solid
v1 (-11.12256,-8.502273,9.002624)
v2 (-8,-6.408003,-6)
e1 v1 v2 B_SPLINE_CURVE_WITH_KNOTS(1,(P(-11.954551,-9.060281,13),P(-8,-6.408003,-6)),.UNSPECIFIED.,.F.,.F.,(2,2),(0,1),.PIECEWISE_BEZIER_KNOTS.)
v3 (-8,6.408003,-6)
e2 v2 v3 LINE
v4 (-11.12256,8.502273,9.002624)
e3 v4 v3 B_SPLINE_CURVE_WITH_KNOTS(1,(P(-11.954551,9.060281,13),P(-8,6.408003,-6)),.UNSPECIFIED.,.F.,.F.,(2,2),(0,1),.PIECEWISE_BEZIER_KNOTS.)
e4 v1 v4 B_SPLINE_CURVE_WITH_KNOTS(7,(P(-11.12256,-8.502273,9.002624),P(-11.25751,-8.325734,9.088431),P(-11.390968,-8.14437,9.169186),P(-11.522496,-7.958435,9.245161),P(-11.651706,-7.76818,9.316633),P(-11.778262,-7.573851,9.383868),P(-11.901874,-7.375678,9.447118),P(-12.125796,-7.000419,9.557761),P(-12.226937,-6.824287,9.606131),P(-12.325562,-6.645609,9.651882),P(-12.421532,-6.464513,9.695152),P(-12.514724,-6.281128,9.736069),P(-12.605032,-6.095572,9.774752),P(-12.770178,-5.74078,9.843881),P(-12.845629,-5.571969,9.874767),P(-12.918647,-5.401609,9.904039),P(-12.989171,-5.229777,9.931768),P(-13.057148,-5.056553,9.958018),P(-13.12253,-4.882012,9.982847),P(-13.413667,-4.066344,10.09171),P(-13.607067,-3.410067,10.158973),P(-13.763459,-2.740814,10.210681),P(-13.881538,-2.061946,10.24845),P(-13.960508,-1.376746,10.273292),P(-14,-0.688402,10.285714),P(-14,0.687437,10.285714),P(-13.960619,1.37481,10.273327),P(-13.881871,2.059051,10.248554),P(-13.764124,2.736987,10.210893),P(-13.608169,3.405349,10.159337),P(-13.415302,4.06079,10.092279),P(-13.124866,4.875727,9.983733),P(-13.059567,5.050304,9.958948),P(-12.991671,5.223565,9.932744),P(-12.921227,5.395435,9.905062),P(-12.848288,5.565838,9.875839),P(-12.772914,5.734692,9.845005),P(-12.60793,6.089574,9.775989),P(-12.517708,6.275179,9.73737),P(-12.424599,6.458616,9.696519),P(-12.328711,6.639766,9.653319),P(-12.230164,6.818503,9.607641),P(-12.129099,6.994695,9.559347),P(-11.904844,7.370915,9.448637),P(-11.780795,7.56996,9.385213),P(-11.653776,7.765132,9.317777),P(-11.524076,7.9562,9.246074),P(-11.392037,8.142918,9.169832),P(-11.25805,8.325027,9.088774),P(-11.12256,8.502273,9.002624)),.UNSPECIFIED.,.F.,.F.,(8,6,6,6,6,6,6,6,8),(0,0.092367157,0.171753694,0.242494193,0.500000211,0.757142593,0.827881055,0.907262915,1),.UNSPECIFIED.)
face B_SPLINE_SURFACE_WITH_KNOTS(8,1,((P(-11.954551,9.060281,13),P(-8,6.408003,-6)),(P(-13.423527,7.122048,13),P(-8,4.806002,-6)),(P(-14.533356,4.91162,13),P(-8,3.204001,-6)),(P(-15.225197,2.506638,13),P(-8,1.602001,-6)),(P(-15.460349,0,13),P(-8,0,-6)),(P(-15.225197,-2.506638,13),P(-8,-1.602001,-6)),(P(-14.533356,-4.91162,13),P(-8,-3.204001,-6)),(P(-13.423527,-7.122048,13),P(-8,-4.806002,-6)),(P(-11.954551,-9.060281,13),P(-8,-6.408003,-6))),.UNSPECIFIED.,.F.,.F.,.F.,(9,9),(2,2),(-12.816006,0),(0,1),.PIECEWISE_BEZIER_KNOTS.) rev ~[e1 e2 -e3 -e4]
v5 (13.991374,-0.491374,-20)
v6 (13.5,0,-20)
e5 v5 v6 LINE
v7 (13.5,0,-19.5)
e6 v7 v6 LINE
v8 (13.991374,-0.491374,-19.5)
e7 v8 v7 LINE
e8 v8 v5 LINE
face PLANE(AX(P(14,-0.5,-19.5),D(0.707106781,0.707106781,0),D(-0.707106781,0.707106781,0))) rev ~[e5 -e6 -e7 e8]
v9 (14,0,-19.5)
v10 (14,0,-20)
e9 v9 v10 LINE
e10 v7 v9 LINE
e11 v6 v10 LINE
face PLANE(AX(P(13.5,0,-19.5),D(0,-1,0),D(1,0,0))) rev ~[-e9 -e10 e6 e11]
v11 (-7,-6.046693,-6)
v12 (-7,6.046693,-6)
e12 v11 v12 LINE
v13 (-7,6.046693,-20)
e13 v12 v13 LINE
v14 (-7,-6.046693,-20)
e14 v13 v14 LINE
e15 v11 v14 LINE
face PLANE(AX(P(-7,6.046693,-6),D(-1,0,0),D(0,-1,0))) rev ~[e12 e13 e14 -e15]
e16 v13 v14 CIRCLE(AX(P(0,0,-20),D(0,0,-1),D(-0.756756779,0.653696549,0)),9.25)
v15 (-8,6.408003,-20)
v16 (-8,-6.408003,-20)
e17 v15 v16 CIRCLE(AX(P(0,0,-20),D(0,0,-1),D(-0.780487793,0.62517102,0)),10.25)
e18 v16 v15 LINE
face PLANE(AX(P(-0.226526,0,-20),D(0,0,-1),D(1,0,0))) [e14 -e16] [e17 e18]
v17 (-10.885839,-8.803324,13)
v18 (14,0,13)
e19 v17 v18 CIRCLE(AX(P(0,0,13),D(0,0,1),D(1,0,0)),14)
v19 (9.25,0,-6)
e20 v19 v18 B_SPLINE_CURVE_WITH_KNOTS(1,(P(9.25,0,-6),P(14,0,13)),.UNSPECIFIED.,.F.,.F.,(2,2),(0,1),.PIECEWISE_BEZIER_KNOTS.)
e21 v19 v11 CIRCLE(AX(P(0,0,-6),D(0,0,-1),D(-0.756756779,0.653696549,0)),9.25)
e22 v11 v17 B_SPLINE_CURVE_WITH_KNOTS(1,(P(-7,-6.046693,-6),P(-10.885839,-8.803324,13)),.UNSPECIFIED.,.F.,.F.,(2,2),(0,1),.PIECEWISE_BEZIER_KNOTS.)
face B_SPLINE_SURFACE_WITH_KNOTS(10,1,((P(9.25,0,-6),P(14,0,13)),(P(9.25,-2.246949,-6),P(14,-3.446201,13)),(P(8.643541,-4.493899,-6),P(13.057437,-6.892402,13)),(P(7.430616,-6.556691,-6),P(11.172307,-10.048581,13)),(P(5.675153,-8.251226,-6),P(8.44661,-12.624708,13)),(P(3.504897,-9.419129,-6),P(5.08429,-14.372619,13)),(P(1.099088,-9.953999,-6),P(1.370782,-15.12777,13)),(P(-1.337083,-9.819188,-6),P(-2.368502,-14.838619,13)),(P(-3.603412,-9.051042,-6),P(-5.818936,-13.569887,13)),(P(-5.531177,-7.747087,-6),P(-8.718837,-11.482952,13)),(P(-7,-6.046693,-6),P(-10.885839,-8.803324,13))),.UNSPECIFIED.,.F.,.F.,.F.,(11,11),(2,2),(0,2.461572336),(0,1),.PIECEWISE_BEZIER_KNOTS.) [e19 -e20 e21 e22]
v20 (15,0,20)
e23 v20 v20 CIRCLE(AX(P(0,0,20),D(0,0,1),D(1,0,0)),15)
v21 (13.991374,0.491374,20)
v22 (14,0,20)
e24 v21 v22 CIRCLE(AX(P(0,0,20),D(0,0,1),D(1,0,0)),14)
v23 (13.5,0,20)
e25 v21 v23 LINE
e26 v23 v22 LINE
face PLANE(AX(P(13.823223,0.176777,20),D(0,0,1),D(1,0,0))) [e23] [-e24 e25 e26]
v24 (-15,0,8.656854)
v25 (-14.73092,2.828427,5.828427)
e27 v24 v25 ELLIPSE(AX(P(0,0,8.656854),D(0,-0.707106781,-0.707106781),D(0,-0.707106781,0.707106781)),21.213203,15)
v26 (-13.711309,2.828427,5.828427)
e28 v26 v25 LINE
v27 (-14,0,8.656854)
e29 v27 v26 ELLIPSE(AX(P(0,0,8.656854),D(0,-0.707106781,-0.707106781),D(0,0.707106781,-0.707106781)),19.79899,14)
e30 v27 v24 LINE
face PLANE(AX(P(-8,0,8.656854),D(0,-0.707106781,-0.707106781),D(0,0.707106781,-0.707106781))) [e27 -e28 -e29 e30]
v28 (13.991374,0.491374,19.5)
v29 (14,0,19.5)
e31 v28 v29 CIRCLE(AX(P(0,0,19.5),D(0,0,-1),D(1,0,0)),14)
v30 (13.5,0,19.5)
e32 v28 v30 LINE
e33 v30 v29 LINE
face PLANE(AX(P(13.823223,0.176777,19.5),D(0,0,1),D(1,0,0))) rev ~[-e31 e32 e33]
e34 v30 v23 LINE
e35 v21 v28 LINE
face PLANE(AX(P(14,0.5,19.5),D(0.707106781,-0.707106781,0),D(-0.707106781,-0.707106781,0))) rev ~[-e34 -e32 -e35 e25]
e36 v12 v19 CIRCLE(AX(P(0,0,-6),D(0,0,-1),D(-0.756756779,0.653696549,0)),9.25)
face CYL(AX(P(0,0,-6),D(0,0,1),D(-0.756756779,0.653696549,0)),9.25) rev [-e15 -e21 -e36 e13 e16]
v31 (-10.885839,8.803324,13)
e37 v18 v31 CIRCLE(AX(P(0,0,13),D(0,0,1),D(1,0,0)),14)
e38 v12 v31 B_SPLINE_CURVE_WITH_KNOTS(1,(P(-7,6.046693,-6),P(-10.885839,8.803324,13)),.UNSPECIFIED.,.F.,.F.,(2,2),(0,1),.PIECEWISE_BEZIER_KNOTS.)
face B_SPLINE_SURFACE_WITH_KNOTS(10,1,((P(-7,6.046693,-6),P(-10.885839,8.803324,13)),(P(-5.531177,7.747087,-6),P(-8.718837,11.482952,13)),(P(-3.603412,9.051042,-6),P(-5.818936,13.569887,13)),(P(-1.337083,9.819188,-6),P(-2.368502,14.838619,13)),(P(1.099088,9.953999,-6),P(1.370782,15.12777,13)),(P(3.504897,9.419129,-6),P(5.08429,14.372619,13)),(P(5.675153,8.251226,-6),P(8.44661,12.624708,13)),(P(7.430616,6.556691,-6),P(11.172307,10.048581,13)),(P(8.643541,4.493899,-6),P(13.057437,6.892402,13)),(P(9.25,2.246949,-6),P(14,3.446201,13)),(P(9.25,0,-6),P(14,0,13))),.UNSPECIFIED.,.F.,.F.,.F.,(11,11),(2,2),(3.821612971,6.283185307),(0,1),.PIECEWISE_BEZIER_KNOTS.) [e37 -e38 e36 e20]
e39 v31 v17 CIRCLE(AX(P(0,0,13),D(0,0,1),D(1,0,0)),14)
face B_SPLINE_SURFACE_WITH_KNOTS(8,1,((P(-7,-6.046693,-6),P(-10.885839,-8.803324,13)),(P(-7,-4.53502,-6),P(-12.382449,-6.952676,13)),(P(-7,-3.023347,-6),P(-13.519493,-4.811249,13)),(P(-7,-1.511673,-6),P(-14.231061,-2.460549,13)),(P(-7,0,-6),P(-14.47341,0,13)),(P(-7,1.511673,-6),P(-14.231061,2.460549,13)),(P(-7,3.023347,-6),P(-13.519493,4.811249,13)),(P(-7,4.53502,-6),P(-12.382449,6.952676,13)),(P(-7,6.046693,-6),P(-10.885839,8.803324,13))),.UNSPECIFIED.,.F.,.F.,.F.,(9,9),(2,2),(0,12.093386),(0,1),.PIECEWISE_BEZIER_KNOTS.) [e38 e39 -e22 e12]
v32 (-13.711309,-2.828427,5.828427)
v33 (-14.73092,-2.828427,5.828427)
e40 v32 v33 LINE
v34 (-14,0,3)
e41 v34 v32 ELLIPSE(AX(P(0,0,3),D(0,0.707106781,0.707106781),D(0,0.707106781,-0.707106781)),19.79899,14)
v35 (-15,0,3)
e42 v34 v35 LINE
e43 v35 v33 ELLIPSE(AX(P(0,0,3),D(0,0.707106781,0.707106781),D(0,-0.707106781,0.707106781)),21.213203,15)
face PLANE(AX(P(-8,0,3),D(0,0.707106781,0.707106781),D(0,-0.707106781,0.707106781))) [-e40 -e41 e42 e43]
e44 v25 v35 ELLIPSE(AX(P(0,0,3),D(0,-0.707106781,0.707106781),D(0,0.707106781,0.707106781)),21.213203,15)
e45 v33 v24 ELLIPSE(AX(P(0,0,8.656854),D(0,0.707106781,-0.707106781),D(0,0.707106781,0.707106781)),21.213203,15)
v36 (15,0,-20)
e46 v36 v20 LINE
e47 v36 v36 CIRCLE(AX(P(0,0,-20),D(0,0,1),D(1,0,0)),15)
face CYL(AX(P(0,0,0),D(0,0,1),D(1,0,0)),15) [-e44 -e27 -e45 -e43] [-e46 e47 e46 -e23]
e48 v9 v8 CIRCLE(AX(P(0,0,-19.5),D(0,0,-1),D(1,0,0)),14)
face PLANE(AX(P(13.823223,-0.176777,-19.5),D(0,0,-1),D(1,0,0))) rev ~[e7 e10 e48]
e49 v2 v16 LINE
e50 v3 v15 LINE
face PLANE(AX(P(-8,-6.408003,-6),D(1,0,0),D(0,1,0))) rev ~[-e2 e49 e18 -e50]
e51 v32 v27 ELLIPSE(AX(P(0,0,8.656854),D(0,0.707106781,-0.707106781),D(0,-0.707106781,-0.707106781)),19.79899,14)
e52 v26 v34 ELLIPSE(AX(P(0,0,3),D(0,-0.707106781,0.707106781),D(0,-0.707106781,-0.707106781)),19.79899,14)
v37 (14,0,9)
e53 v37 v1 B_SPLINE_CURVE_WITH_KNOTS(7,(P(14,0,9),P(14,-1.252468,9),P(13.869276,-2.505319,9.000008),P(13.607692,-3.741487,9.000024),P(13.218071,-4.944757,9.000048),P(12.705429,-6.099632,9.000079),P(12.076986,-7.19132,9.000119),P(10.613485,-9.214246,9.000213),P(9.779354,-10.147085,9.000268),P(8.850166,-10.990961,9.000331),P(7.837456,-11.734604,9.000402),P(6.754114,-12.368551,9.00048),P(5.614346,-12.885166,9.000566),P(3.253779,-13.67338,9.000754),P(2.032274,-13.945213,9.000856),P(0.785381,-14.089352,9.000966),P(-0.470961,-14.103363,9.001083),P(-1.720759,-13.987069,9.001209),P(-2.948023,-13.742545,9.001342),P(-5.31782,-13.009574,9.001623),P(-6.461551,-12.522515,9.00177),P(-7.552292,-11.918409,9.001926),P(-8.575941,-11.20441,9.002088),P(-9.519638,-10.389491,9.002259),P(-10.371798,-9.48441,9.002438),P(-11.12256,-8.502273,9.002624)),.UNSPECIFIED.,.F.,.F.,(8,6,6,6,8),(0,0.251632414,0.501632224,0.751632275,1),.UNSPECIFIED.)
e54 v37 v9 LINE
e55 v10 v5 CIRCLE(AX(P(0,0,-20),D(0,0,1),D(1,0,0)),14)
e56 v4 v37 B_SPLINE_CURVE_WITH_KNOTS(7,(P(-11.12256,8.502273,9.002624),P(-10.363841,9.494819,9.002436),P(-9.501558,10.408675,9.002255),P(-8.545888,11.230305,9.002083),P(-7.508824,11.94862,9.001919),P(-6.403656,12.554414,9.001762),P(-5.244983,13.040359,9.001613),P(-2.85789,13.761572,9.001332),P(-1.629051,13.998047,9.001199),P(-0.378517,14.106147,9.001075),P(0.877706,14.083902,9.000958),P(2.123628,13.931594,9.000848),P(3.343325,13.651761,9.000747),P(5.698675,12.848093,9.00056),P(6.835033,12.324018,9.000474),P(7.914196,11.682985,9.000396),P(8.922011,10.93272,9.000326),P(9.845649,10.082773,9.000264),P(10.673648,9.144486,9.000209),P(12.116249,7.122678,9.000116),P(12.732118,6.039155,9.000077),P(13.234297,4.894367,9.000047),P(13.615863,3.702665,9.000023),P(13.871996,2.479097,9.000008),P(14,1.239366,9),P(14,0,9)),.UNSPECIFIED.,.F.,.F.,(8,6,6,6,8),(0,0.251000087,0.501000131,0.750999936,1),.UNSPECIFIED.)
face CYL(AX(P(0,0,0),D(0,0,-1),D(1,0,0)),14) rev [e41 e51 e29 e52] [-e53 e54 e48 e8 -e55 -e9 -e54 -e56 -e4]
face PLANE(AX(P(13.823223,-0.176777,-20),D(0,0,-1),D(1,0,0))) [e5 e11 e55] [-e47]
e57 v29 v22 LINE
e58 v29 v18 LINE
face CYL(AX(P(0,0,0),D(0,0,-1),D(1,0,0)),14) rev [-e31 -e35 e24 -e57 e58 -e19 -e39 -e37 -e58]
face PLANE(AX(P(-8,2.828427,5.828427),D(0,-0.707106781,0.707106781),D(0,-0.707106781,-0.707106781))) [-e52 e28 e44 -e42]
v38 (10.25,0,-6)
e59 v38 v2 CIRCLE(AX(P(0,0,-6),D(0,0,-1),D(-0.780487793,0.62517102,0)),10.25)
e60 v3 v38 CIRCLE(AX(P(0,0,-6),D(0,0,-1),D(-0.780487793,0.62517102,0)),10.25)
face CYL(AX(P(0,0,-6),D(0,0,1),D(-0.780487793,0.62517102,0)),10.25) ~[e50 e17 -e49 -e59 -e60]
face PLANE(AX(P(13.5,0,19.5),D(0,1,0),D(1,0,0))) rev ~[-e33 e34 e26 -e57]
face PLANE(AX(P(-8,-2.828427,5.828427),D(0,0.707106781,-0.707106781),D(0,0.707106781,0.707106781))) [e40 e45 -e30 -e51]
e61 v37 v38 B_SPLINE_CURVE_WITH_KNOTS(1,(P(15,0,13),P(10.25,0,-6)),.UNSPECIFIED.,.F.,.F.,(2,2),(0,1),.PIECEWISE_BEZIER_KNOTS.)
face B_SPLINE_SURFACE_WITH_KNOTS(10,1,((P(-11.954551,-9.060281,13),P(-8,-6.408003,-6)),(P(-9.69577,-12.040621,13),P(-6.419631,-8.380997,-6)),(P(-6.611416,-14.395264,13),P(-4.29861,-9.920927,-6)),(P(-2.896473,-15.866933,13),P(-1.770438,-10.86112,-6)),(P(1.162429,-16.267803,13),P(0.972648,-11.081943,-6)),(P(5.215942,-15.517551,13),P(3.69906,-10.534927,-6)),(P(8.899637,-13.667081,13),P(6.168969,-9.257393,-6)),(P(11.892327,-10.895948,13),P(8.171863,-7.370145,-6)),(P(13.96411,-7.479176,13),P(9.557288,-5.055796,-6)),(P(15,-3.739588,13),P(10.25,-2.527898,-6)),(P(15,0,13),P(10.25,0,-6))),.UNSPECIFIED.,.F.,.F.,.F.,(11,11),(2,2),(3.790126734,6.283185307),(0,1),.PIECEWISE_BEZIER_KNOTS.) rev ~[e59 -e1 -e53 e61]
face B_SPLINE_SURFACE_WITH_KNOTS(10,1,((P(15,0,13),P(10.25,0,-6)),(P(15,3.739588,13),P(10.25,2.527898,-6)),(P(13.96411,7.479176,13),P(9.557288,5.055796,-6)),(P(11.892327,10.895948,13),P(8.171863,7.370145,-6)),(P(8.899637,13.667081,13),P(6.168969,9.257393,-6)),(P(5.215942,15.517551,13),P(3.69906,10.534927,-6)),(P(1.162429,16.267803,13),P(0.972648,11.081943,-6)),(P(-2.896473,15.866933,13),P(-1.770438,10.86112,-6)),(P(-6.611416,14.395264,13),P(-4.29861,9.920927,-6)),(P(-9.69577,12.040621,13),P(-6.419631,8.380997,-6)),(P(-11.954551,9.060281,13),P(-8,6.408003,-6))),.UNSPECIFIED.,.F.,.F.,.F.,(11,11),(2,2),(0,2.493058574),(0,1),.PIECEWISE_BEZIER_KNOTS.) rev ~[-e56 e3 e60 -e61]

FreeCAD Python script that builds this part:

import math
import FreeCAD as App
import Part
import Sketcher

V = App.Vector


def add_polygon(sketch, points):
    """Adds a closed chain of lines whose ends are joined by coincident constraints."""
    first, n = sketch.GeometryCount, len(points)
    for a, b in zip(points, points[1:] + points[:1]):
        sketch.addGeometry(Part.LineSegment(App.Vector(*a, 0), App.Vector(*b, 0)), False)
    for i in range(n):
        sketch.addConstraint(Sketcher.Constraint("Coincident", first + i, 2, first + (i + 1) % n, 1))

doc = App.newDocument("Part")
body = doc.addObject("PartDesign::Body", "Body")

# Sketch on XY plane
sketch1 = doc.addObject("Sketcher::SketchObject", "Sketch")
body.addObject(sketch1)
sketch1.AttachmentSupport = (doc.XY_Plane, [""])
sketch1.MapMode = "FlatFace"
sketch1.AttachmentOffset = App.Placement(V(0, 0, -6), App.Rotation())
sketch1.addGeometry([
    Part.ArcOfCircle(Part.Circle(V(0, 0, 0), V(0, 0, 1), 10.25), math.radians(-141.305259), math.radians(141.305259)),
    Part.LineSegment(V(-8, -6.408003, 0), V(-8, 6.408003, 0)),
    Part.ArcOfCircle(Part.Circle(V(0, 0, 0), V(0, 0, 1), 9.25), math.radians(-139.179111), math.radians(139.179111)),
    Part.LineSegment(V(-7, 6.046693, 0), V(-7, -6.046693, 0)),
], False)
sketch1.addConstraint([
    Sketcher.Constraint("Coincident", 0, 1, 1, 1),
    Sketcher.Constraint("Coincident", 1, 2, 0, 2),
    Sketcher.Constraint("Coincident", 2, 1, 3, 2),
    Sketcher.Constraint("Coincident", 3, 1, 2, 2),
    Sketcher.Constraint("Vertical", 1),
    Sketcher.Constraint("Vertical", 3),
    Sketcher.Constraint("Coincident", 0, 3, -1, 1),
    Sketcher.Constraint("Coincident", 2, 3, -1, 1),
    Sketcher.Constraint("Radius", 0, 10.25),
    Sketcher.Constraint("Radius", 2, 9.25),
    Sketcher.Constraint("DistanceX", 0, 1, -1, 1, 8.0),
    Sketcher.Constraint("DistanceX", 2, 1, -1, 1, 7.0),
])
pad1 = doc.addObject("PartDesign::Pad", "Pad")
body.addObject(pad1)
pad1.Profile = sketch1
pad1.Length = 14
pad1.Reversed = True
body2 = doc.addObject("PartDesign::Body", "Body001")

# Sketch on XY plane
sketch2 = doc.addObject("Sketcher::SketchObject", "Sketch001")
body2.addObject(sketch2)
sketch2.AttachmentSupport = (doc.getObject("XY_Plane001"), [""])
sketch2.MapMode = "FlatFace"
sketch2.addGeometry([
    Part.Circle(V(0, 0, 0), V(0, 0, 1), 15),
    Part.Circle(V(0, 0, 0), V(0, 0, 1), 14),
], False)
sketch2.addConstraint([
    Sketcher.Constraint("Coincident", 0, 3, -1, 1),
    Sketcher.Constraint("Coincident", 1, 3, -1, 1),
    Sketcher.Constraint("Diameter", 0, 30.0),
    Sketcher.Constraint("Diameter", 1, 28.0),
])
pad2 = doc.addObject("PartDesign::Pad", "Pad001")
body2.addObject(pad2)
pad2.Profile = sketch2
pad2.Type = "TwoLengths"
pad2.Length = 20
pad2.Length2 = 20

# Sketch on XY plane
sketch3 = doc.addObject("Sketcher::SketchObject", "Sketch002")
body2.addObject(sketch3)
sketch3.AttachmentSupport = (doc.getObject("XY_Plane001"), [""])
sketch3.MapMode = "FlatFace"
sketch3.AttachmentOffset = App.Placement(V(0, 0, 19.5), App.Rotation())
add_polygon(sketch3, [(13.5, 0), (14, 0), (14, 0.5)])  # lines 0-2
sketch3.addConstraint([
    Sketcher.Constraint("Horizontal", 0),
    Sketcher.Constraint("Vertical", 1),
    Sketcher.Constraint("PointOnObject", 0, 2, -1),
    Sketcher.Constraint("Equal", 0, 1),
    Sketcher.Constraint("DistanceX", 0, 1, 0, 2, 0.5),
    Sketcher.Constraint("DistanceX", -1, 1, 0, 2, 14.0),
])
pad3 = doc.addObject("PartDesign::Pad", "Pad002")
body2.addObject(pad3)
pad3.Profile = sketch3
pad3.Length = 0.5

# Sketch on XY plane
sketch4 = doc.addObject("Sketcher::SketchObject", "Sketch003")
body2.addObject(sketch4)
sketch4.AttachmentSupport = (doc.getObject("XY_Plane001"), [""])
sketch4.MapMode = "FlatFace"
sketch4.AttachmentOffset = App.Placement(V(0, 0, -19.5), App.Rotation())
add_polygon(sketch4, [(13.5, 0), (14, 0), (14, -0.5)])  # lines 0-2
sketch4.addConstraint([
    Sketcher.Constraint("Horizontal", 0),
    Sketcher.Constraint("Vertical", 1),
    Sketcher.Constraint("PointOnObject", 0, 2, -1),
    Sketcher.Constraint("Equal", 0, 1),
    Sketcher.Constraint("DistanceX", 0, 1, 0, 2, 0.5),
    Sketcher.Constraint("DistanceX", -1, 1, 0, 2, 14.0),
])
pad4 = doc.addObject("PartDesign::Pad", "Pad003")
body2.addObject(pad4)
pad4.Profile = sketch4
pad4.Length = 0.5
pad4.Reversed = True

# Sketch on YZ plane
sketch5 = doc.addObject("Sketcher::SketchObject", "Sketch004")
body2.addObject(sketch5)
sketch5.AttachmentSupport = (doc.getObject("YZ_Plane001"), [""])
sketch5.MapMode = "FlatFace"
sketch5.AttachmentOffset = App.Placement(V(0, 0, -8), App.Rotation())
add_polygon(sketch5, [(0, 3), (-2.828427, 5.828427), (0, 8.656854), (2.828427, 5.828427)])  # lines 0-3
sketch5.addConstraint([
    Sketcher.Constraint("Symmetric", 0, 2, 2, 2, -2),
    Sketcher.Constraint("PointOnObject", 1, 2, -2),
    Sketcher.Constraint("PointOnObject", 3, 2, -2),
    Sketcher.Constraint("Perpendicular", 0, 1),
    Sketcher.Constraint("Perpendicular", 1, 2),
    Sketcher.Constraint("Distance", 0, 4.0),
    Sketcher.Constraint("DistanceY", -1, 1, 3, 2, 3.0),
])
pocket1 = doc.addObject("PartDesign::Pocket", "Pocket")
body2.addObject(pocket1)
pocket1.Profile = sketch5
pocket1.Type = "ThroughAll"
body3 = doc.addObject("PartDesign::Body", "Body002")

# Sketch on XY plane
sketch6 = doc.addObject("Sketcher::SketchObject", "Sketch005")
body3.addObject(sketch6)
sketch6.AttachmentSupport = (doc.getObject("XY_Plane002"), [""])
sketch6.MapMode = "FlatFace"
sketch6.AttachmentOffset = App.Placement(V(0, 0, -6), App.Rotation())
sketch6.addGeometry([
    Part.ArcOfCircle(Part.Circle(V(0, 0, 0), V(0, 0, 1), 9.25), math.radians(-139.179111), math.radians(139.179111)),
    Part.LineSegment(V(-7, -6.046693, 0), V(-7, 6.046693, 0)),
], False)
sketch6.addConstraint([
    Sketcher.Constraint("Coincident", 0, 1, 1, 1),
    Sketcher.Constraint("Coincident", 1, 2, 0, 2),
    Sketcher.Constraint("Vertical", 1),
    Sketcher.Constraint("Coincident", 0, 3, -1, 1),
    Sketcher.Constraint("Radius", 0, 9.25),
    Sketcher.Constraint("DistanceX", 0, 1, -1, 1, 7.0),
])

# Sketch on XY plane
sketch7 = doc.addObject("Sketcher::SketchObject", "Sketch006")
body3.addObject(sketch7)
sketch7.AttachmentSupport = (doc.getObject("XY_Plane002"), [""])
sketch7.MapMode = "FlatFace"
sketch7.AttachmentOffset = App.Placement(V(0, 0, 13), App.Rotation())
sketch7.addGeometry(Part.Circle(V(0, 0, 0), V(0, 0, 1), 14), False)
sketch7.addConstraint([
    Sketcher.Constraint("Coincident", 0, 3, -1, 1),
    Sketcher.Constraint("Diameter", 0, 28.0),
])

additiveloft = doc.addObject("PartDesign::AdditiveLoft", "AdditiveLoft")
body3.addObject(additiveloft)
additiveloft.Profile = sketch6
additiveloft.Sections = [sketch7]
body4 = doc.addObject("PartDesign::Body", "Body003")

# Sketch on XY plane
sketch8 = doc.addObject("Sketcher::SketchObject", "Sketch007")
body4.addObject(sketch8)
sketch8.AttachmentSupport = (doc.getObject("XY_Plane003"), [""])
sketch8.MapMode = "FlatFace"
sketch8.AttachmentOffset = App.Placement(V(0, 0, 13), App.Rotation())
sketch8.addGeometry(Part.Circle(V(0, 0, 0), V(0, 0, 1), 15), False)
sketch8.addConstraint([
    Sketcher.Constraint("Coincident", 0, 3, -1, 1),
    Sketcher.Constraint("Diameter", 0, 30.0),
])

# Sketch on XY plane
sketch9 = doc.addObject("Sketcher::SketchObject", "Sketch008")
body4.addObject(sketch9)
sketch9.AttachmentSupport = (doc.getObject("XY_Plane003"), [""])
sketch9.MapMode = "FlatFace"
sketch9.AttachmentOffset = App.Placement(V(0, 0, -6), App.Rotation())
sketch9.addGeometry([
    Part.ArcOfCircle(Part.Circle(V(0, 0, 0), V(0, 0, 1), 10.25), math.radians(-141.305259), math.radians(141.305259)),
    Part.LineSegment(V(-8, -6.408003, 0), V(-8, 6.408003, 0)),
], False)
sketch9.addConstraint([
    Sketcher.Constraint("Coincident", 0, 1, 1, 1),
    Sketcher.Constraint("Coincident", 1, 2, 0, 2),
    Sketcher.Constraint("Vertical", 1),
    Sketcher.Constraint("Coincident", 0, 3, -1, 1),
    Sketcher.Constraint("Radius", 0, 10.25),
    Sketcher.Constraint("DistanceX", 0, 1, -1, 1, 8.0),
])

additiveloft2 = doc.addObject("PartDesign::AdditiveLoft", "AdditiveLoft001")
body4.addObject(additiveloft2)
additiveloft2.Profile = sketch8
additiveloft2.Sections = [sketch9]
doc.recompute()

boolean = doc.addObject("PartDesign::Boolean", "Boolean")
body4.addObject(boolean)
boolean.Type = "Cut"
boolean.addObjects([body3])
doc.recompute()

boolean2 = doc.addObject("PartDesign::Boolean", "Boolean001")
body4.addObject(boolean2)
boolean2.Type = "Fuse"
boolean2.addObjects([body])
doc.recompute()

boolean3 = doc.addObject("PartDesign::Boolean", "Boolean002")
body4.addObject(boolean3)
boolean3.Type = "Fuse"
boolean3.addObjects([body2])

doc.recompute()
